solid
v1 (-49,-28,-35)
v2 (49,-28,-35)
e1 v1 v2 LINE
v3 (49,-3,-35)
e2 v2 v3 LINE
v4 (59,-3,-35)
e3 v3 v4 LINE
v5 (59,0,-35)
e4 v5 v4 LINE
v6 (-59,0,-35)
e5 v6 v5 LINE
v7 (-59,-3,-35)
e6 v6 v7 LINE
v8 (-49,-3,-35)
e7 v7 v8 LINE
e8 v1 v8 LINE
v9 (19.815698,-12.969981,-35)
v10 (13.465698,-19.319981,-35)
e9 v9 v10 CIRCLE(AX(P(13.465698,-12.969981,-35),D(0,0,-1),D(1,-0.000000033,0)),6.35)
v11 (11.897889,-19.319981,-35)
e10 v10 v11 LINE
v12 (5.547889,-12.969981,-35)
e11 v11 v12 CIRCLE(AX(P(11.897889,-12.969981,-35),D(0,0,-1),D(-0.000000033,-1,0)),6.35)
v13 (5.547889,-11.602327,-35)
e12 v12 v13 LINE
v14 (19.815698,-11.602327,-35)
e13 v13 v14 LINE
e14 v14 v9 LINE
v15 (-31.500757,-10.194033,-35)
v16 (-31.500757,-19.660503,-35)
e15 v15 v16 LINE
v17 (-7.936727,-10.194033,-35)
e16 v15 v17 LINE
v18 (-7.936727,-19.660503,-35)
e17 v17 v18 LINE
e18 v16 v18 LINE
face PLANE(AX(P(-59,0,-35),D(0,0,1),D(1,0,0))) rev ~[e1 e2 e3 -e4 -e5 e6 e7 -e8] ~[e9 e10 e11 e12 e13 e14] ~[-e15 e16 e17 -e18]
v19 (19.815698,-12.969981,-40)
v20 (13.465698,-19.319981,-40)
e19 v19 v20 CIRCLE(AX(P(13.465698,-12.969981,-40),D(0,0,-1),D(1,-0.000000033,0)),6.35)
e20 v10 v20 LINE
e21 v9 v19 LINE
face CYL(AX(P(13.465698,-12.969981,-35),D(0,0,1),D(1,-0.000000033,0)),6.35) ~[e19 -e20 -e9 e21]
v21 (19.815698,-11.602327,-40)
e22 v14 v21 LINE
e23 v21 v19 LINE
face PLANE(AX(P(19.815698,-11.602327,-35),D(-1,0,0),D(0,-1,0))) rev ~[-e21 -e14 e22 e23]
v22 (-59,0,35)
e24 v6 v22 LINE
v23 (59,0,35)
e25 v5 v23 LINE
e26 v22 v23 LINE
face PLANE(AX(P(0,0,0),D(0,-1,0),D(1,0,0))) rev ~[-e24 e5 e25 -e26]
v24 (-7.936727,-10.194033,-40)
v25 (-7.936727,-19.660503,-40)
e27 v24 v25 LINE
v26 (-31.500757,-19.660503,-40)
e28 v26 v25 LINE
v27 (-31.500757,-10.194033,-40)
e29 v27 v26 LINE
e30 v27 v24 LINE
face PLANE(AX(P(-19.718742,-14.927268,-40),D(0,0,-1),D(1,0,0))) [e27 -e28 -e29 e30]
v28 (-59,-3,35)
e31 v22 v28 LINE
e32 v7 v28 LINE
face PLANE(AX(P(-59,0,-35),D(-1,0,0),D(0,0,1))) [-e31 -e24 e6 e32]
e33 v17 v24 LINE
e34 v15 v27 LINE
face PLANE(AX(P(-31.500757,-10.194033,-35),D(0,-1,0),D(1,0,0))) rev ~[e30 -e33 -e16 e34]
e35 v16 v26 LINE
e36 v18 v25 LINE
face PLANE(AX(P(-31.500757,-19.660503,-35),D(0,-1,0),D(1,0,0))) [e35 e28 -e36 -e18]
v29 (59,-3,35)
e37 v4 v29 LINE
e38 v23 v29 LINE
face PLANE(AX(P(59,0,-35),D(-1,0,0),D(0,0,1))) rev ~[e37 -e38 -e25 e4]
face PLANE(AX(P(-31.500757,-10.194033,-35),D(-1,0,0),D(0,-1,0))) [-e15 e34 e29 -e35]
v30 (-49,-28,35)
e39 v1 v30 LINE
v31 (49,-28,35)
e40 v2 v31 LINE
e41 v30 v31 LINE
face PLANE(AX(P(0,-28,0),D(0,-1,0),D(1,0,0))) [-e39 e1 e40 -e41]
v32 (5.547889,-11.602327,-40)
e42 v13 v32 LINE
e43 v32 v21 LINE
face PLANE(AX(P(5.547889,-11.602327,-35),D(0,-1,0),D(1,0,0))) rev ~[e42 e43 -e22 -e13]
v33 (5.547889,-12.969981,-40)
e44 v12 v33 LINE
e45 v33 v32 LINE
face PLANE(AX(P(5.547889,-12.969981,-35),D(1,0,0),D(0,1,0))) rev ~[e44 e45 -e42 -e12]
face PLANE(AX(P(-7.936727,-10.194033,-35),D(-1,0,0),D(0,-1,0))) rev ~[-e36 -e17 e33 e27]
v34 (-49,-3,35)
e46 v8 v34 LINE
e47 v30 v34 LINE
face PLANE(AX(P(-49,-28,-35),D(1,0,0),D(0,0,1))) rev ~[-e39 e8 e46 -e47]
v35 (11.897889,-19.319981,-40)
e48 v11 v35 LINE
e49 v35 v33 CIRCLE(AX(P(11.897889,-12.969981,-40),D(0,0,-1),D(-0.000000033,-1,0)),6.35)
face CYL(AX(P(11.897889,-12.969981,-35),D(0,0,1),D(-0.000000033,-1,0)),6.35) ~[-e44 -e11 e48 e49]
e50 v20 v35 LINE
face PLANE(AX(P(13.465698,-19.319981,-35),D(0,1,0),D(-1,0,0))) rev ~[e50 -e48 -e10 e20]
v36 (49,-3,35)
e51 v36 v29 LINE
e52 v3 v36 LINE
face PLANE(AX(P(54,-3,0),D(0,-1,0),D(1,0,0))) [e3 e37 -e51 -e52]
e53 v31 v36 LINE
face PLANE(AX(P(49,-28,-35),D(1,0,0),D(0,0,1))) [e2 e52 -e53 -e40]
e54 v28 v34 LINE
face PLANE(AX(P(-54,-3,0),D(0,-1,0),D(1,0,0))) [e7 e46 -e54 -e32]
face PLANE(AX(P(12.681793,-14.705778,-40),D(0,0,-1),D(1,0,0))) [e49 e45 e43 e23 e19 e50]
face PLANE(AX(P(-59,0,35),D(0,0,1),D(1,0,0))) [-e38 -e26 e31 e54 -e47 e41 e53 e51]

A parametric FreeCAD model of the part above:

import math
import FreeCAD as App
import Part
import Sketcher

V = App.Vector


def add_polygon(sketch, points):
    """Adds a closed chain of lines whose ends are joined by coincident constraints."""
    first, n = sketch.GeometryCount, len(points)
    for a, b in zip(points, points[1:] + points[:1]):
        sketch.addGeometry(Part.LineSegment(App.Vector(*a, 0), App.Vector(*b, 0)), False)
    for i in range(n):
        sketch.addConstraint(Sketcher.Constraint("Coincident", first + i, 2, first + (i + 1) % n, 1))

doc = App.newDocument("Part")
body = doc.addObject("PartDesign::Body", "Body")

sketch1 = body.newObject("Sketcher::SketchObject", "Sketch")
sketch1.AttachmentSupport = (doc.getObject("XZ_Plane"), [""])
sketch1.MapMode = "FlatFace"
add_polygon(sketch1, [(-59, 35), (-59, -35), (59, -35), (59, 35)])
sketch1.addConstraint(Sketcher.Constraint("Vertical", 0))
sketch1.addConstraint(Sketcher.Constraint("Horizontal", 1))
sketch1.addConstraint(Sketcher.Constraint("Vertical", 2))
sketch1.addConstraint(Sketcher.Constraint("Horizontal", 3))
sketch1.addConstraint(Sketcher.Constraint("Symmetric", 0, 2, 2, 2, -1, 1))
sketch1.addConstraint(Sketcher.Constraint("DistanceX", 1, 1, 1, 2, 118.0))
sketch1.addConstraint(Sketcher.Constraint("DistanceY", 0, 2, 0, 1, 70.0))
pad1 = body.newObject("PartDesign::Pad", "Pad")
pad1.Profile = sketch1
pad1.Length = 28

sketch2 = body.newObject("Sketcher::SketchObject", "Sketch001")
sketch2.AttachmentSupport = (doc.getObject("XZ_Plane"), [""])
sketch2.MapMode = "FlatFace"
sketch2.AttachmentOffset = App.Placement(V(0, 0, 28), App.Rotation())
add_polygon(sketch2, [(49, 35), (49, -35), (59, -35), (59, 35)])
add_polygon(sketch2, [(-59, 35), (-59, -35), (-49, -35), (-49, 35)])
sketch2.addConstraint(Sketcher.Constraint("Vertical", 0))
sketch2.addConstraint(Sketcher.Constraint("Horizontal", 1))
sketch2.addConstraint(Sketcher.Constraint("Vertical", 2))
sketch2.addConstraint(Sketcher.Constraint("Horizontal", 3))
sketch2.addConstraint(Sketcher.Constraint("Vertical", 4))
sketch2.addConstraint(Sketcher.Constraint("Horizontal", 5))
sketch2.addConstraint(Sketcher.Constraint("Vertical", 6))
sketch2.addConstraint(Sketcher.Constraint("Horizontal", 7))
sketch2.addConstraint(Sketcher.Constraint("Symmetric", 2, 2, 4, 2, -1, 1))
sketch2.addConstraint(Sketcher.Constraint("Symmetric", 0, 2, 6, 2, -1, 1))
sketch2.addConstraint(Sketcher.Constraint("Horizontal", 1, 2, 4, 2))
sketch2.addConstraint(Sketcher.Constraint("DistanceX", 1, 1, 1, 2, 10.0))
sketch2.addConstraint(Sketcher.Constraint("DistanceY", 0, 2, 0, 1, 70.0))
sketch2.addConstraint(Sketcher.Constraint("DistanceX", -1, 1, 0, 2, 49.0))
pocket1 = body.newObject("PartDesign::Pocket", "Pocket")
pocket1.Profile = sketch2
pocket1.Length = 25

sketch3 = body.newObject("Sketcher::SketchObject", "Sketch002")
sketch3.AttachmentSupport = (doc.getObject("XY_Plane"), [""])
sketch3.MapMode = "FlatFace"
sketch3.AttachmentOffset = App.Placement(V(0, 0, -35), App.Rotation())
sketch3.addGeometry(Part.LineSegment(V(13.5, -19.3, 0), V(11.9, -19.3, 0)), False)
sketch3.addGeometry(Part.ArcOfCircle(Part.Circle(V(11.9, -13, 0), V(0, 0, 1), 6.4), math.radians(-180), math.radians(-90)), False)
sketch3.addGeometry(Part.LineSegment(V(5.5, -13, 0), V(5.5, -11.6, 0)), False)
sketch3.addGeometry(Part.LineSegment(V(5.5, -11.6, 0), V(19.8, -11.6, 0)), False)
sketch3.addGeometry(Part.LineSegment(V(19.8, -11.6, 0), V(19.8, -13, 0)), False)
sketch3.addGeometry(Part.ArcOfCircle(Part.Circle(V(13.5, -13, 0), V(0, 0, 1), 6.4), math.radians(-90), math.radians(0)), False)
add_polygon(sketch3, [(-31.5, -19.7), (-31.5, -10.2), (-7.9, -10.2), (-7.9, -19.7)])
sketch3.addConstraint(Sketcher.Constraint("Tangent", 0, 2, 1, 2))
sketch3.addConstraint(Sketcher.Constraint("Tangent", 1, 1, 2, 1))
sketch3.addConstraint(Sketcher.Constraint("Coincident", 2, 2, 3, 1))
sketch3.addConstraint(Sketcher.Constraint("Coincident", 3, 2, 4, 1))
sketch3.addConstraint(Sketcher.Constraint("Tangent", 4, 2, 5, 2))
sketch3.addConstraint(Sketcher.Constraint("Tangent", 5, 1, 0, 1))
sketch3.addConstraint(Sketcher.Constraint("Horizontal", 0))
sketch3.addConstraint(Sketcher.Constraint("Vertical", 2))
sketch3.addConstraint(Sketcher.Constraint("Horizontal", 3))
sketch3.addConstraint(Sketcher.Constraint("Vertical", 4))
sketch3.addConstraint(Sketcher.Constraint("Vertical", 6))
sketch3.addConstraint(Sketcher.Constraint("Horizontal", 7))
sketch3.addConstraint(Sketcher.Constraint("Vertical", 8))
sketch3.addConstraint(Sketcher.Constraint("Horizontal", 9))
sketch3.addConstraint(Sketcher.Constraint("Equal", 1, 5))
sketch3.addConstraint(Sketcher.Constraint("Radius", 1, 6.35))
sketch3.addConstraint(Sketcher.Constraint("DistanceX", 0, 2, 0, 1, 1.567809))
sketch3.addConstraint(Sketcher.Constraint("DistanceX", 7, 1, 7, 2, 23.56403))
sketch3.addConstraint(Sketcher.Constraint("DistanceY", 6, 1, 6, 2, 9.46647))
sketch3.addConstraint(Sketcher.Constraint("DistanceX", -1, 1, 3, 2, 19.815698))
sketch3.addConstraint(Sketcher.Constraint("DistanceY", 2, 1, 2, 2, 1.367654))
sketch3.addConstraint(Sketcher.Constraint("DistanceY", 1, 3, -1, 1, 12.969981))
sketch3.addConstraint(Sketcher.Constraint("DistanceY", 1, 1, 6, 2, 2.775948))
sketch3.addConstraint(Sketcher.Constraint("DistanceX", 6, 2, -1, 1, 31.500757))
pad2 = body.newObject("PartDesign::Pad", "Pad001")
pad2.Profile = sketch3
pad2.Length = 5
pad2.Reversed = True

doc.recompute()
